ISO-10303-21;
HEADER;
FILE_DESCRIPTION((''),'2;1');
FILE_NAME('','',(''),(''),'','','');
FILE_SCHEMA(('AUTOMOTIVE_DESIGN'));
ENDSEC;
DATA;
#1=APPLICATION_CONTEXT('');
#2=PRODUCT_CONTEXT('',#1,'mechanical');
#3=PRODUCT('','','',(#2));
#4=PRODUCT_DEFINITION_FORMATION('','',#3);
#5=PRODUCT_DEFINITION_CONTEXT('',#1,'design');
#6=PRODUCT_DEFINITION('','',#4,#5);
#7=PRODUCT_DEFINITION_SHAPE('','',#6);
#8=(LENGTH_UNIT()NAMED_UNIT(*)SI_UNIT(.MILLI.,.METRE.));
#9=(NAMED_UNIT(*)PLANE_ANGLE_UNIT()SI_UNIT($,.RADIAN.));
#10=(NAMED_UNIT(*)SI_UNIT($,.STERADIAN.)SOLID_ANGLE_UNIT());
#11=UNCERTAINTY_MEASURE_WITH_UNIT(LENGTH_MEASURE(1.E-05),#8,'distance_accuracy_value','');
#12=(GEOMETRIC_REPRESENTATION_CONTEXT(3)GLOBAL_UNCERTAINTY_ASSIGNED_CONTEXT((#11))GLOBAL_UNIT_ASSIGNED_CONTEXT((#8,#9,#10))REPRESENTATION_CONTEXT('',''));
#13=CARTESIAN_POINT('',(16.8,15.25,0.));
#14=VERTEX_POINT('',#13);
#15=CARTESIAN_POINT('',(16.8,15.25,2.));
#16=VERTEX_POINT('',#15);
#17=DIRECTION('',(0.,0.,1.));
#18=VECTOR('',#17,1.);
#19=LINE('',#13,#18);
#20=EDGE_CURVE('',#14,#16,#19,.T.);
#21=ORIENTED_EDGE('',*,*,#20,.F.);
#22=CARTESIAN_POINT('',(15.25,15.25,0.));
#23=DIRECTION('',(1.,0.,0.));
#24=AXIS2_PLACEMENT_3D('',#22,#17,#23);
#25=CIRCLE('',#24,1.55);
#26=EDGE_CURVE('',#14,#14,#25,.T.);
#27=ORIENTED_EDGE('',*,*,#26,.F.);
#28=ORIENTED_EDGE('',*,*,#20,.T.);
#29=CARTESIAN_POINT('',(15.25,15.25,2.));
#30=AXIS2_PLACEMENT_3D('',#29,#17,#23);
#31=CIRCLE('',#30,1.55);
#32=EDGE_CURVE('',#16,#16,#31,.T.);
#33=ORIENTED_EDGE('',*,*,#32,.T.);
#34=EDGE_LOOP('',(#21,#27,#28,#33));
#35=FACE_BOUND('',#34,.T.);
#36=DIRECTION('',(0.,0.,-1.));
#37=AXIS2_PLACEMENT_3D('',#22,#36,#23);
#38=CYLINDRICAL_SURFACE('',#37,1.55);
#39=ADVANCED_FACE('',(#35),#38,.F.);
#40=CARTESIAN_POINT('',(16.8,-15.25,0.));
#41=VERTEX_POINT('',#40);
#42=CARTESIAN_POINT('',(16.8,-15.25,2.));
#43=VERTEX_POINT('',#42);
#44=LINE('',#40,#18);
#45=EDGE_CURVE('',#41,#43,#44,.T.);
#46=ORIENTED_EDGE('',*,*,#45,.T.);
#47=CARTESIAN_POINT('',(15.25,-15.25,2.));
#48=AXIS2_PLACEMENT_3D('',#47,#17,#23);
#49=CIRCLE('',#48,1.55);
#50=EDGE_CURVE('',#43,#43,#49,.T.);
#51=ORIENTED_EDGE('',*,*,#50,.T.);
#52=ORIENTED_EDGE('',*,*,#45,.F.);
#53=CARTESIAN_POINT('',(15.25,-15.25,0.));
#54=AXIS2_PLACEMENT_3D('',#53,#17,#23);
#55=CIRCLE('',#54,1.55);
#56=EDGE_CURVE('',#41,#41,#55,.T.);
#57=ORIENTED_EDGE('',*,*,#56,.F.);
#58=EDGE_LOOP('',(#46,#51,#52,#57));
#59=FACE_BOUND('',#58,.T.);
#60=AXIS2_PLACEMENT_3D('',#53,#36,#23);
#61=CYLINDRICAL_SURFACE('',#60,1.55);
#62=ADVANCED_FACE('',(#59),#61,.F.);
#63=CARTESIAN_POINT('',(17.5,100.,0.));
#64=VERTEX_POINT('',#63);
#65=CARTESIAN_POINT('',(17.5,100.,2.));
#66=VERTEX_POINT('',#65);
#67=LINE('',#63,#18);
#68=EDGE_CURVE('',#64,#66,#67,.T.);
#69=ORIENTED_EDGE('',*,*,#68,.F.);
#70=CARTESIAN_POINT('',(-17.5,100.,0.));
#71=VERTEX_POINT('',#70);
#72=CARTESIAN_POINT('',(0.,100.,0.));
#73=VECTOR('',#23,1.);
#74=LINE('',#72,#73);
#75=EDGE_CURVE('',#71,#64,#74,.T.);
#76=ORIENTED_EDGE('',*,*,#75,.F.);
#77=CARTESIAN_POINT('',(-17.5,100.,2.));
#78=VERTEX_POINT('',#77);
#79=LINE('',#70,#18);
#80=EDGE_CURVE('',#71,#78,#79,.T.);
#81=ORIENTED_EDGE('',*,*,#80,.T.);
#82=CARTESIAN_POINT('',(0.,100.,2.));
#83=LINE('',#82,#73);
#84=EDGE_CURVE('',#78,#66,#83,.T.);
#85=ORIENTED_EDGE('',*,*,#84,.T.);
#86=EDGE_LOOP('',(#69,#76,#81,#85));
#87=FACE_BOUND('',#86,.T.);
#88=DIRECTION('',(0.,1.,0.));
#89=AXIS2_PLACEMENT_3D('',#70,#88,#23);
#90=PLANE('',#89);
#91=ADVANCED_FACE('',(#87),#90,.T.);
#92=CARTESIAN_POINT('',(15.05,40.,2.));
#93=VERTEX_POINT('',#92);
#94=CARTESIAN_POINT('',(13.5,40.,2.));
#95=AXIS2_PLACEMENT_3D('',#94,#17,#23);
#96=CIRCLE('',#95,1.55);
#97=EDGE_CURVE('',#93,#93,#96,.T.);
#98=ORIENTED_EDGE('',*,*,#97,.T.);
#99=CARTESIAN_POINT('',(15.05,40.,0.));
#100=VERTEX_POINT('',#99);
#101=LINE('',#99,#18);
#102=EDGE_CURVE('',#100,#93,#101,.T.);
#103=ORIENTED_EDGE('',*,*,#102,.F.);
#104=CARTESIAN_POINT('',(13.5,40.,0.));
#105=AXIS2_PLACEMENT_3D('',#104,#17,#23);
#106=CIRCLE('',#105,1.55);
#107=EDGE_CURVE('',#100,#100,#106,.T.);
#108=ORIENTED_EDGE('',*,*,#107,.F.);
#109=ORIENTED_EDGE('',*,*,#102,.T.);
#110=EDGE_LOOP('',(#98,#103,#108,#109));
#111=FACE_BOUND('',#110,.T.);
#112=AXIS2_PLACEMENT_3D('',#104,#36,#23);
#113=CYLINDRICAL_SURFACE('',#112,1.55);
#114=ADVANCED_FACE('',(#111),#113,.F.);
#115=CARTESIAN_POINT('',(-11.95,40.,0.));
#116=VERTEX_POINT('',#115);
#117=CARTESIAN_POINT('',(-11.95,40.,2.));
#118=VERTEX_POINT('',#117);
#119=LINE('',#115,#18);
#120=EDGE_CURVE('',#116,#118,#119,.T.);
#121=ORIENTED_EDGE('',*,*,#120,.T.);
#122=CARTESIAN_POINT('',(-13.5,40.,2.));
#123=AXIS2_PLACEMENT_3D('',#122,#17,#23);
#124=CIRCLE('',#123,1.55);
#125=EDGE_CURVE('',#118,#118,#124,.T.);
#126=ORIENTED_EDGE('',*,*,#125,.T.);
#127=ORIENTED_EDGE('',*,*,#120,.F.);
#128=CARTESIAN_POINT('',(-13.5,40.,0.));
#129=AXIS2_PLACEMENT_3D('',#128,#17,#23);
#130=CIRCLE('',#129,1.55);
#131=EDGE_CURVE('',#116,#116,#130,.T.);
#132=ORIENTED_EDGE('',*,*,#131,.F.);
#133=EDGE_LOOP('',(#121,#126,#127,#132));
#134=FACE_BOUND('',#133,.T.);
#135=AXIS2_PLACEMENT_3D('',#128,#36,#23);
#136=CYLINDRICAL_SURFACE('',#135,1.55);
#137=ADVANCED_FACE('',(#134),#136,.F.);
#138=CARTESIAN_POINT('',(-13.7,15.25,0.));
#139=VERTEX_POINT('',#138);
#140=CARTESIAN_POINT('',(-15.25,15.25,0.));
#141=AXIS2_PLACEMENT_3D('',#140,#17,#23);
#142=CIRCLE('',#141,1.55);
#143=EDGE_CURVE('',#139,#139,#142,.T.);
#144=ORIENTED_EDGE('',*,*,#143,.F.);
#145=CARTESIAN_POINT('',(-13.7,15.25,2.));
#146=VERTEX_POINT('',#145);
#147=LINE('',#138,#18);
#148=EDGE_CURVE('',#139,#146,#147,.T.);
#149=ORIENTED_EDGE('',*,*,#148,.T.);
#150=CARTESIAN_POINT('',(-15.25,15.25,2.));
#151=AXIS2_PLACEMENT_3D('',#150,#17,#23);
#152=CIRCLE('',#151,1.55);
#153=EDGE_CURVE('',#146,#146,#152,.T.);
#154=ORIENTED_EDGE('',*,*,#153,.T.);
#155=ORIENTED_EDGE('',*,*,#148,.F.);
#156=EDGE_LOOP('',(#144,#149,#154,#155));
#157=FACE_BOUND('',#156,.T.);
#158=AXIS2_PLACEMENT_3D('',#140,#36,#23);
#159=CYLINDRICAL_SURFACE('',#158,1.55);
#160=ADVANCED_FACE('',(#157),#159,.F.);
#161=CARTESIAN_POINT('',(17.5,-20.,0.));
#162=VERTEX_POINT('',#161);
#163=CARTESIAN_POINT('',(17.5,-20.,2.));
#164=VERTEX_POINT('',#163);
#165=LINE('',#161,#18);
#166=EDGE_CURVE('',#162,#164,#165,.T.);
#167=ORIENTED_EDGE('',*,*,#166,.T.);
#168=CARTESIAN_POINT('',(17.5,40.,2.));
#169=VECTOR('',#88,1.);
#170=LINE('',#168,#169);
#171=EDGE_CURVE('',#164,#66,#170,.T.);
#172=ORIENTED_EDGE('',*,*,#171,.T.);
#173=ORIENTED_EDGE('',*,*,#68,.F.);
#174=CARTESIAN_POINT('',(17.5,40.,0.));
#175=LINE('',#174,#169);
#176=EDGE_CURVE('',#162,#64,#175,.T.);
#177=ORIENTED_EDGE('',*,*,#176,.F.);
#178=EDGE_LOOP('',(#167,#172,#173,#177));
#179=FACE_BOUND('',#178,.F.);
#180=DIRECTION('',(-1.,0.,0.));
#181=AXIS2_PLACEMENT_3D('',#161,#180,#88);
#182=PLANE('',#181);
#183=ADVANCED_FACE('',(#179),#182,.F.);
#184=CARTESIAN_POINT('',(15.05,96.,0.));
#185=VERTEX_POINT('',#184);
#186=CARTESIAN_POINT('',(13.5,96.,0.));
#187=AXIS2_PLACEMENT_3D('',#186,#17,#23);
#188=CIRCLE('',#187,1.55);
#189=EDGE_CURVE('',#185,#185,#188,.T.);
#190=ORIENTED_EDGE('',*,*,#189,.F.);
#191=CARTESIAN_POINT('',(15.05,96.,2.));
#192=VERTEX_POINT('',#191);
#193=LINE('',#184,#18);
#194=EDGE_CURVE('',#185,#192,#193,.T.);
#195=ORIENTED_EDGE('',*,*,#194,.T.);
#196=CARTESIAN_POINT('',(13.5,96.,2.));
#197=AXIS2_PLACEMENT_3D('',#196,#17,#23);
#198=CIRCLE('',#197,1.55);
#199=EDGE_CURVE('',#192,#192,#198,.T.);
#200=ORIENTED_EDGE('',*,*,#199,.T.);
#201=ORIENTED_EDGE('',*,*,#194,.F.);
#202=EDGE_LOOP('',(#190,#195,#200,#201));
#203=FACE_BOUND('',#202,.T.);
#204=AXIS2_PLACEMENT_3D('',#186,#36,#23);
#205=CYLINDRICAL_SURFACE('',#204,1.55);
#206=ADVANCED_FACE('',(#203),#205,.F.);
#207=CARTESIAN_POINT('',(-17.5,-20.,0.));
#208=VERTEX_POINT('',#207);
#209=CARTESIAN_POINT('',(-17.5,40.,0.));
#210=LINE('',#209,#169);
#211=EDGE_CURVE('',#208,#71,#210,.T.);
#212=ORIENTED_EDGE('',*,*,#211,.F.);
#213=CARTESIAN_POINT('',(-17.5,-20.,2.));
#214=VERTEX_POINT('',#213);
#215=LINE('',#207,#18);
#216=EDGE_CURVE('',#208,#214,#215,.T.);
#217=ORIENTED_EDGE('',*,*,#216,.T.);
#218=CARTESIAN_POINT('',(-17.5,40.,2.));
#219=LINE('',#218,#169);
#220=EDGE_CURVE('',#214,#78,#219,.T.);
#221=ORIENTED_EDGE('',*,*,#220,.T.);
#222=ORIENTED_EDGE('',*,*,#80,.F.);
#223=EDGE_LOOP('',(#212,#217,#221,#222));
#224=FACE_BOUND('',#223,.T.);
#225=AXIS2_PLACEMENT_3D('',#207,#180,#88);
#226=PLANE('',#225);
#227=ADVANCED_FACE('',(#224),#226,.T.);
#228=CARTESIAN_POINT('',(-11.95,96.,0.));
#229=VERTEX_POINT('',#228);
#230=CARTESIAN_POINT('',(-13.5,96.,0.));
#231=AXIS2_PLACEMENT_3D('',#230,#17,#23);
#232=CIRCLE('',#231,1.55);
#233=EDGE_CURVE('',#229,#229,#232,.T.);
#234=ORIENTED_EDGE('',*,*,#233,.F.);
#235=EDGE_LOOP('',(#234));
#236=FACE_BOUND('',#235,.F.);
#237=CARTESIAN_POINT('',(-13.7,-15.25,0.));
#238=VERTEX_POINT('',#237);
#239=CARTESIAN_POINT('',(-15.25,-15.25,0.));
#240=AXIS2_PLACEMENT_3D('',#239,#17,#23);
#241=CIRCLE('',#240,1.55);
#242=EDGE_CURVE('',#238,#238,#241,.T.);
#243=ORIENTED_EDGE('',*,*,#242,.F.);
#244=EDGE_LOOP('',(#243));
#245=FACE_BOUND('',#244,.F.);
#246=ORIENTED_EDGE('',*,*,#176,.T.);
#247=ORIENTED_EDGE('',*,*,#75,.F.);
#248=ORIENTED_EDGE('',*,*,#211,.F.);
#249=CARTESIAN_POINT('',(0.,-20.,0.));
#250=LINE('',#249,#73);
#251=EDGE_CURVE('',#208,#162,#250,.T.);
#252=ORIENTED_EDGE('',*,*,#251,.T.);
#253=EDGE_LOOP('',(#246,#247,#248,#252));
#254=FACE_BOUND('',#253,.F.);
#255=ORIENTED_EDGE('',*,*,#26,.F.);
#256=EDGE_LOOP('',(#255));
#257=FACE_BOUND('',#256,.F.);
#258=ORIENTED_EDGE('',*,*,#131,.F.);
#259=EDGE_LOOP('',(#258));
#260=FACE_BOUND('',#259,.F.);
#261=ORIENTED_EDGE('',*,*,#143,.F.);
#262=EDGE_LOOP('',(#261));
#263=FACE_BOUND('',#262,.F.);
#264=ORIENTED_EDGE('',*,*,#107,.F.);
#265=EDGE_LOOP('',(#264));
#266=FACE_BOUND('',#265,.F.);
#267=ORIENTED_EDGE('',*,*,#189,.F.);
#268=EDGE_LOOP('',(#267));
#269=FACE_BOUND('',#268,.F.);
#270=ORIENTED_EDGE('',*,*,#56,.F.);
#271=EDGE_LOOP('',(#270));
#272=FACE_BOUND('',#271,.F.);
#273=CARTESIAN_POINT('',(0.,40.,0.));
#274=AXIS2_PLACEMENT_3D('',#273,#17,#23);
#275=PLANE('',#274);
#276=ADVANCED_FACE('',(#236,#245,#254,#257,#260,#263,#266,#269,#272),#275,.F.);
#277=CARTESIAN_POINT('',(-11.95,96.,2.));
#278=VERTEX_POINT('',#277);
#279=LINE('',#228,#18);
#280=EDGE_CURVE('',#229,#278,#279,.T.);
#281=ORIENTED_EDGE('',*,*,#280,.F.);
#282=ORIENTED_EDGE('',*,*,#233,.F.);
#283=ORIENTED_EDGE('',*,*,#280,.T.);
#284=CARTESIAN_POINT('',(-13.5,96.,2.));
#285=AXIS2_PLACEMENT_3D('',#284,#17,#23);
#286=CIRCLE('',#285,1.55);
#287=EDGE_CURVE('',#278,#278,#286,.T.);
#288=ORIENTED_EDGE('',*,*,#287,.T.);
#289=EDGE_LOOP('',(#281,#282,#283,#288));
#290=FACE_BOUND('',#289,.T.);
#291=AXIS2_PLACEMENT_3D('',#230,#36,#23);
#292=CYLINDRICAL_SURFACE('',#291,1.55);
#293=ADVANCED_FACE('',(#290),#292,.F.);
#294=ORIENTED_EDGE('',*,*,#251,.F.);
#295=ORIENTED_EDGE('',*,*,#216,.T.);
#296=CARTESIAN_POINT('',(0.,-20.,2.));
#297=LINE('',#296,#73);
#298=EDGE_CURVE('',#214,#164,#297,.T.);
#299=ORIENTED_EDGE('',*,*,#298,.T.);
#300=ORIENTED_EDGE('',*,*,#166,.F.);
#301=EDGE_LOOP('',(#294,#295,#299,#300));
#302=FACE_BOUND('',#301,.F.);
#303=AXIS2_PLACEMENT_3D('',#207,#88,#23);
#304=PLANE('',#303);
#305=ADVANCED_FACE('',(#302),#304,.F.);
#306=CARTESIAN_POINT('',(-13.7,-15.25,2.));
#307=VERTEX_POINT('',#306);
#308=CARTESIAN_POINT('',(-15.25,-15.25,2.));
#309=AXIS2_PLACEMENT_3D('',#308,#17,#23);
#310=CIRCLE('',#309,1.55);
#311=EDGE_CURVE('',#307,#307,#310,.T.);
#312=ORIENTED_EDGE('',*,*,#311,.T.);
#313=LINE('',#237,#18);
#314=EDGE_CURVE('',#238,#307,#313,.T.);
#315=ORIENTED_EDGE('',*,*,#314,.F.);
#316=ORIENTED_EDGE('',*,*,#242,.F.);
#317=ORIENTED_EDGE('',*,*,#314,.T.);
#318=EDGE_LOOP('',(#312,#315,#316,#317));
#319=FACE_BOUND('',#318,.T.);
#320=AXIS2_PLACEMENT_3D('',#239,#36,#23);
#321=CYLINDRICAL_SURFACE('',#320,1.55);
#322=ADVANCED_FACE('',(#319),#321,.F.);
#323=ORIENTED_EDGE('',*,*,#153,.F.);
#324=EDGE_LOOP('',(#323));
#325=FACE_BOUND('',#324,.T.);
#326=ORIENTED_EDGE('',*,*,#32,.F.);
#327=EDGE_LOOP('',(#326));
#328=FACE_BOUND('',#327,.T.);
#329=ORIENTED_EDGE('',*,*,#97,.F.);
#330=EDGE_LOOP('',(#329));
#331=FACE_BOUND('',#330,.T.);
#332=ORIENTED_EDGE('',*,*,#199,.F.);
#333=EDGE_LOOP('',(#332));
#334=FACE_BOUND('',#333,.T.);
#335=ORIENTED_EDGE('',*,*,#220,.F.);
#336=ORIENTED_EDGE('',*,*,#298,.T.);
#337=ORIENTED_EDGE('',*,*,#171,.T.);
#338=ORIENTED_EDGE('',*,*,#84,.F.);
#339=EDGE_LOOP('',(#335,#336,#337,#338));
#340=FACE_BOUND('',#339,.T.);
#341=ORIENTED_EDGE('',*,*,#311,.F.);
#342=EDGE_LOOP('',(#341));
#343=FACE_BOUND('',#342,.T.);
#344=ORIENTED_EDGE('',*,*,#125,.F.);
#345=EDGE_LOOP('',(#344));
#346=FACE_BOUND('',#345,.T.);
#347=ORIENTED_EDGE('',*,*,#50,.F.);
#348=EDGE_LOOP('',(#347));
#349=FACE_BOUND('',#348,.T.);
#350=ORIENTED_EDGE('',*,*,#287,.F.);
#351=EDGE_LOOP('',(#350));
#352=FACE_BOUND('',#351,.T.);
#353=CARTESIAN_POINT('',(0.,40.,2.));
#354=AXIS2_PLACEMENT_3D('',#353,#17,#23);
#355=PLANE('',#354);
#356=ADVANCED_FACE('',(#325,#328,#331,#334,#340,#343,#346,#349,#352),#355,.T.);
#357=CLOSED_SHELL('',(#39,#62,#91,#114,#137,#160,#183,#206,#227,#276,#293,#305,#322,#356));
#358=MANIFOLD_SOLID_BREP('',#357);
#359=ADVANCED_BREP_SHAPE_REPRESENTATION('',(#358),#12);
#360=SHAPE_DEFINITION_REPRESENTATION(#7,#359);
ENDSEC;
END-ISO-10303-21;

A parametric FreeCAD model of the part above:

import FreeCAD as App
import Part
import Sketcher

V = App.Vector

doc = App.newDocument("Part")
body = doc.addObject("PartDesign::Body", "Body")

# Sketch on XY plane
sketch1 = body.newObject("Sketcher::SketchObject", "Sketch")
sketch1.AttachmentSupport = (doc.getObject("XY_Plane"), [""])
sketch1.MapMode = "FlatFace"
sketch1.addGeometry([
    Part.LineSegment(V(-17.5, 100, 0), V(-17.5, -20, 0)),  # 0
    Part.LineSegment(V(-17.5, -20, 0), V(17.5, -20, 0)),  # 1
    Part.LineSegment(V(17.5, -20, 0), V(17.5, 100, 0)),  # 2
    Part.LineSegment(V(17.5, 100, 0), V(-17.5, 100, 0)),  # 3
    Part.Circle(V(-15.2, -15.2, 0), V(0, 0, 1), 1.6),  # 4
    Part.Circle(V(-15.2, 15.2, 0), V(0, 0, 1), 1.6),  # 5
    Part.Circle(V(-13.5, 40, 0), V(0, 0, 1), 1.6),  # 6
    Part.Circle(V(15.2, -15.2, 0), V(0, 0, 1), 1.6),  # 7
    Part.Circle(V(15.2, 15.2, 0), V(0, 0, 1), 1.6),  # 8
    Part.Circle(V(13.5, 40, 0), V(0, 0, 1), 1.6),  # 9
    Part.Circle(V(-13.5, 96, 0), V(0, 0, 1), 1.6),  # 10
    Part.Circle(V(13.5, 96, 0), V(0, 0, 1), 1.6),  # 11
], False)
sketch1.addConstraint([
    Sketcher.Constraint("Coincident", 0, 2, 1, 1),
    Sketcher.Constraint("Coincident", 1, 2, 2, 1),
    Sketcher.Constraint("Coincident", 2, 2, 3, 1),
    Sketcher.Constraint("Coincident", 3, 2, 0, 1),
    Sketcher.Constraint("Vertical", 0),
    Sketcher.Constraint("Horizontal", 1),
    Sketcher.Constraint("Vertical", 2),
    Sketcher.Constraint("Horizontal", 3),
    Sketcher.Constraint("Equal", 4, 5),
    Sketcher.Constraint("Equal", 5, 6),
    Sketcher.Constraint("Equal", 6, 7),
    Sketcher.Constraint("Equal", 7, 8),
    Sketcher.Constraint("Equal", 8, 9),
    Sketcher.Constraint("Equal", 9, 10),
    Sketcher.Constraint("Equal", 10, 11),
    Sketcher.Constraint("Symmetric", 5, 3, 7, 3, -1, 1),
    Sketcher.Constraint("Symmetric", 4, 3, 8, 3, -1, 1),
    Sketcher.Constraint("Symmetric", 4, 3, 7, 3, -2),
    Sketcher.Constraint("Symmetric", 6, 3, 9, 3, -2),
    Sketcher.Constraint("Symmetric", 10, 3, 11, 3, -2),
    Sketcher.Constraint("Vertical", 6, 3, 10, 3),
    Sketcher.Constraint("Diameter", 4, 3.1),
    Sketcher.Constraint("DistanceX", 1, 1, 1, 2, 35.0),
    Sketcher.Constraint("DistanceY", 0, 2, 0, 1, 120.0),
    Sketcher.Constraint("DistanceY", -1, 1, 6, 3, 40.0),
    Sketcher.Constraint("DistanceY", -1, 1, 10, 3, 96.0),
    Sketcher.Constraint("DistanceY", 0, 2, -1, 1, 20.0),
    Sketcher.Constraint("DistanceX", 6, 3, 9, 3, 27.0),
    Sketcher.Constraint("DistanceX", 0, 2, 6, 3, 4.0),
    Sketcher.Constraint("DistanceY", 4, 3, 5, 3, 30.5),
    Sketcher.Constraint("DistanceX", 4, 3, 7, 3, 30.5),
])
pad1 = body.newObject("PartDesign::Pad", "Pad")
pad1.Profile = sketch1
pad1.Length = 2

doc.recompute()
